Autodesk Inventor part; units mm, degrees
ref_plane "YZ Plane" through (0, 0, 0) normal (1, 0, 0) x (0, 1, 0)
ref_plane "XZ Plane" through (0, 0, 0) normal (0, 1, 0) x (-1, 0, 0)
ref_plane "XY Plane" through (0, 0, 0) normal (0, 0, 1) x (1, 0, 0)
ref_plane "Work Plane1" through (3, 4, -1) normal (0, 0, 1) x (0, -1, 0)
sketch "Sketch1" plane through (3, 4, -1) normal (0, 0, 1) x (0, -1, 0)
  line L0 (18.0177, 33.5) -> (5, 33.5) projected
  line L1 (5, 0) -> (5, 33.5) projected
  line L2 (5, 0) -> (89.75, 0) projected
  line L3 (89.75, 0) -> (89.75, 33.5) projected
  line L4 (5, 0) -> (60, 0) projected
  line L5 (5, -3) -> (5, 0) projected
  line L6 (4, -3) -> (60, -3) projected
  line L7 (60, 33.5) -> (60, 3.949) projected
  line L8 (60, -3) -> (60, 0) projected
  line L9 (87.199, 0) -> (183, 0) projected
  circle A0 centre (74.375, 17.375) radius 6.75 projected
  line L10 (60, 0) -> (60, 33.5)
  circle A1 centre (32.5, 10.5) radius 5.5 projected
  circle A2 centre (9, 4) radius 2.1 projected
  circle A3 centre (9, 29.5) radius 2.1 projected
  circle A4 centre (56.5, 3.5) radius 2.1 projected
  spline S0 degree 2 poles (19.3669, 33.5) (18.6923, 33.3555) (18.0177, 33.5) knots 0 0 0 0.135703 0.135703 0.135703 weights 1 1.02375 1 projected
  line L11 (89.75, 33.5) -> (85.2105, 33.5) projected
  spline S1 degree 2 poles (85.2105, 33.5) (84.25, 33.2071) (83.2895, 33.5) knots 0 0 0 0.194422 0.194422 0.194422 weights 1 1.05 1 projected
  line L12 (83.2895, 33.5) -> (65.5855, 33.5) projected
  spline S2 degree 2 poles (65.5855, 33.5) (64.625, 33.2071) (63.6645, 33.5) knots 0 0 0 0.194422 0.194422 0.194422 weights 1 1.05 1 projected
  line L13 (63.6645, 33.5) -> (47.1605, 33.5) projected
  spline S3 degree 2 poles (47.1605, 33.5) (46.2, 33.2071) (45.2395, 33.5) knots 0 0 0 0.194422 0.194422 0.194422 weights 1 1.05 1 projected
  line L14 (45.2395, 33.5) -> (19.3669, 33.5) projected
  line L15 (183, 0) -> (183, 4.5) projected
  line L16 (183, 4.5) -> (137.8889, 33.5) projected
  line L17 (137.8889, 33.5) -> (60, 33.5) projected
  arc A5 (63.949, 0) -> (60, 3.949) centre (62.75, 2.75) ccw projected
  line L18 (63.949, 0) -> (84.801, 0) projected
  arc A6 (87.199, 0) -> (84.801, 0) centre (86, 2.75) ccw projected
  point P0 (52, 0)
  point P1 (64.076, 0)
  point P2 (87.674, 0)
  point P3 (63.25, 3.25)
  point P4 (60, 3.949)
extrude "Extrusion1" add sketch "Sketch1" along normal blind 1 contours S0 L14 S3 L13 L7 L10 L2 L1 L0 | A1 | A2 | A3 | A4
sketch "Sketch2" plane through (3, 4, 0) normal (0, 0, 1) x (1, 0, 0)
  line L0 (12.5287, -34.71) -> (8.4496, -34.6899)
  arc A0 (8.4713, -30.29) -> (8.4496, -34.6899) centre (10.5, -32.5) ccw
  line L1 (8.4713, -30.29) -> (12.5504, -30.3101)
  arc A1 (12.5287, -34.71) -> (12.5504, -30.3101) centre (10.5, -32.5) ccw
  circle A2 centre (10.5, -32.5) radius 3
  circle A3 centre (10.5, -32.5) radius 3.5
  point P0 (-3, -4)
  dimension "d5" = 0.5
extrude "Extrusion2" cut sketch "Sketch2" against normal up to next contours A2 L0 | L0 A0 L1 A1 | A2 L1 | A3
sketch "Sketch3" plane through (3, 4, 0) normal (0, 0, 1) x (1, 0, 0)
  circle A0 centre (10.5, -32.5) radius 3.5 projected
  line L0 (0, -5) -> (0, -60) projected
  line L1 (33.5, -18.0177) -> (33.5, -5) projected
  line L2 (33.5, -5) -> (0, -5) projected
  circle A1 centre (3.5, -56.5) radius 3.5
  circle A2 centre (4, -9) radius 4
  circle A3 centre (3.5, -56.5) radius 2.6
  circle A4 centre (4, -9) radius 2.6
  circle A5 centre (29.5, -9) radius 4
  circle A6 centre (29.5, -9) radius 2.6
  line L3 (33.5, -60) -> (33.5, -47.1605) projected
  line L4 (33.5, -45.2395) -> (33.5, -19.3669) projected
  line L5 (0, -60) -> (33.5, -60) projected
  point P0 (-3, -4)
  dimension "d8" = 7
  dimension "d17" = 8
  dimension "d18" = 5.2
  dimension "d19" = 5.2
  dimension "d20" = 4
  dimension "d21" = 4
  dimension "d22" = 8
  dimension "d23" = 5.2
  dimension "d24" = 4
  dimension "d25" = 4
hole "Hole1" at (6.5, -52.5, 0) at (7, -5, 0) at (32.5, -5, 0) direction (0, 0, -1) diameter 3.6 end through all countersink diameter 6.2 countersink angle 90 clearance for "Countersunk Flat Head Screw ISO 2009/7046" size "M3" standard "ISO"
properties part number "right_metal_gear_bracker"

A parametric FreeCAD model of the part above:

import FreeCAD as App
import Part
import Sketcher
from FreeCAD import Vector

doc = App.newDocument("Part")
body = doc.addObject("PartDesign::Body", "Body")

# Sketch on XY plane
sketch1 = doc.addObject("Sketcher::SketchObject", "Sketch")
body.addObject(sketch1)
sketch1.AttachmentSupport = (doc.XY_Plane, [""])
sketch1.MapMode = "FlatFace"
sketch1.AttachmentOffset = App.Placement(Vector(0, 0, -1), App.Rotation())
sketch1.addGeometry(Part.BSplineCurve([Vector(36.5, -15.3669, 0), Vector(36.3555, -14.6923, 0), Vector(36.5, -14.0177, 0)], [3, 3], [0, 0.135703], False, 2, [1, 1.02375, 1], False), False)
sketch1.addGeometry(Part.LineSegment(Vector(36.5, -14.0177, 0), Vector(36.5, -1, 0)), False)
sketch1.addGeometry(Part.LineSegment(Vector(36.5, -1, 0), Vector(3, -1, 0)), False)
sketch1.addGeometry(Part.LineSegment(Vector(3, -1, 0), Vector(3, -56, 0)), False)
sketch1.addGeometry(Part.LineSegment(Vector(3, -56, 0), Vector(36.5, -56, 0)), False)
sketch1.addGeometry(Part.LineSegment(Vector(36.5, -56, 0), Vector(36.5, -43.1605, 0)), False)
sketch1.addGeometry(Part.BSplineCurve([Vector(36.5, -43.1605, 0), Vector(36.2071, -42.2, 0), Vector(36.5, -41.2395, 0)], [3, 3], [0, 0.194422], False, 2, [1, 1.05, 1], False), False)
sketch1.addGeometry(Part.LineSegment(Vector(36.5, -41.2395, 0), Vector(36.5, -15.3669, 0)), False)
sketch1.addConstraint(Sketcher.Constraint("Block", 0))
sketch1.addConstraint(Sketcher.Constraint("Block", 6))
sketch1.addConstraint(Sketcher.Constraint("Coincident", 0, 2, 1, 1))
sketch1.addConstraint(Sketcher.Constraint("Coincident", 1, 2, 2, 1))
sketch1.addConstraint(Sketcher.Constraint("Coincident", 2, 2, 3, 1))
sketch1.addConstraint(Sketcher.Constraint("Coincident", 3, 2, 4, 1))
sketch1.addConstraint(Sketcher.Constraint("Coincident", 4, 2, 5, 1))
sketch1.addConstraint(Sketcher.Constraint("Coincident", 5, 2, 6, 1))
sketch1.addConstraint(Sketcher.Constraint("Coincident", 6, 2, 7, 1))
sketch1.addConstraint(Sketcher.Constraint("Coincident", 7, 2, 0, 1))
sketch1.addConstraint(Sketcher.Constraint("Vertical", 1))
sketch1.addConstraint(Sketcher.Constraint("Horizontal", 2))
sketch1.addConstraint(Sketcher.Constraint("Vertical", 3))
sketch1.addConstraint(Sketcher.Constraint("Horizontal", 4))
sketch1.addConstraint(Sketcher.Constraint("Vertical", 5))
sketch1.addConstraint(Sketcher.Constraint("DistanceY", 3, 2, 3, 1, 55.0))
sketch1.addConstraint(Sketcher.Constraint("DistanceX", 2, 2, 2, 1, 33.5))
sketch1.addConstraint(Sketcher.Constraint("DistanceY", 1, 2, -1, 1, 1.0))
pad1 = doc.addObject("PartDesign::Pad", "Pad")
body.addObject(pad1)
pad1.Profile = sketch1
pad1.Length = 1

# Sketch on XY plane
sketch2 = doc.addObject("Sketcher::SketchObject", "Sketch001")
body.addObject(sketch2)
sketch2.AttachmentSupport = (doc.XY_Plane, [""])
sketch2.MapMode = "FlatFace"
sketch2.addGeometry(Part.Circle(Vector(13.5, -28.5, 0), Vector(0, 0, 1), 3.5), False)
sketch2.addConstraint(Sketcher.Constraint("Diameter", 0, 7.0))
sketch2.addConstraint(Sketcher.Constraint("DistanceX", -1, 1, 0, 3, 13.5))
sketch2.addConstraint(Sketcher.Constraint("DistanceY", 0, 3, -1, 1, 28.5))
pocket1 = doc.addObject("PartDesign::Pocket", "Pocket")
body.addObject(pocket1)
pocket1.Profile = sketch2
pocket1.Type = "UpToFirst"

# Sketch on XY plane
sketch3 = doc.addObject("Sketcher::SketchObject", "Sketch002")
body.addObject(sketch3)
sketch3.AttachmentSupport = (doc.XY_Plane, [""])
sketch3.MapMode = "FlatFace"
sketch3.addGeometry(Part.Circle(Vector(6.5, -52.5, 0), Vector(0, 0, 1), 1.8), False)
sketch3.addGeometry(Part.Circle(Vector(7, -5, 0), Vector(0, 0, 1), 1.8), False)
sketch3.addGeometry(Part.Circle(Vector(32.5, -5, 0), Vector(0, 0, 1), 1.8), False)
sketch3.addConstraint(Sketcher.Constraint("Equal", 0, 1))
sketch3.addConstraint(Sketcher.Constraint("Equal", 1, 2))
sketch3.addConstraint(Sketcher.Constraint("Horizontal", 1, 3, 2, 3))
sketch3.addConstraint(Sketcher.Constraint("Diameter", 0, 3.6))
sketch3.addConstraint(Sketcher.Constraint("DistanceX", -1, 1, 1, 3, 7.0))
sketch3.addConstraint(Sketcher.Constraint("DistanceY", 1, 3, -1, 1, 5.0))
sketch3.addConstraint(Sketcher.Constraint("DistanceX", 0, 3, 2, 3, 26.0))
sketch3.addConstraint(Sketcher.Constraint("DistanceX", -1, 1, 0, 3, 6.5))
sketch3.addConstraint(Sketcher.Constraint("DistanceY", 0, 3, -1, 1, 52.5))
doc.recompute()
hole = doc.addObject("PartDesign::Hole", "Hole")
body.addObject(hole)
hole.Profile = sketch3
hole.ThreadType = "None"
hole.Diameter = 3.6
hole.DepthType = "ThroughAll"
hole.HoleCutType = "Countersink"
hole.HoleCutDiameter = 6.2
hole.HoleCutCountersinkAngle = 90

doc.recompute()
